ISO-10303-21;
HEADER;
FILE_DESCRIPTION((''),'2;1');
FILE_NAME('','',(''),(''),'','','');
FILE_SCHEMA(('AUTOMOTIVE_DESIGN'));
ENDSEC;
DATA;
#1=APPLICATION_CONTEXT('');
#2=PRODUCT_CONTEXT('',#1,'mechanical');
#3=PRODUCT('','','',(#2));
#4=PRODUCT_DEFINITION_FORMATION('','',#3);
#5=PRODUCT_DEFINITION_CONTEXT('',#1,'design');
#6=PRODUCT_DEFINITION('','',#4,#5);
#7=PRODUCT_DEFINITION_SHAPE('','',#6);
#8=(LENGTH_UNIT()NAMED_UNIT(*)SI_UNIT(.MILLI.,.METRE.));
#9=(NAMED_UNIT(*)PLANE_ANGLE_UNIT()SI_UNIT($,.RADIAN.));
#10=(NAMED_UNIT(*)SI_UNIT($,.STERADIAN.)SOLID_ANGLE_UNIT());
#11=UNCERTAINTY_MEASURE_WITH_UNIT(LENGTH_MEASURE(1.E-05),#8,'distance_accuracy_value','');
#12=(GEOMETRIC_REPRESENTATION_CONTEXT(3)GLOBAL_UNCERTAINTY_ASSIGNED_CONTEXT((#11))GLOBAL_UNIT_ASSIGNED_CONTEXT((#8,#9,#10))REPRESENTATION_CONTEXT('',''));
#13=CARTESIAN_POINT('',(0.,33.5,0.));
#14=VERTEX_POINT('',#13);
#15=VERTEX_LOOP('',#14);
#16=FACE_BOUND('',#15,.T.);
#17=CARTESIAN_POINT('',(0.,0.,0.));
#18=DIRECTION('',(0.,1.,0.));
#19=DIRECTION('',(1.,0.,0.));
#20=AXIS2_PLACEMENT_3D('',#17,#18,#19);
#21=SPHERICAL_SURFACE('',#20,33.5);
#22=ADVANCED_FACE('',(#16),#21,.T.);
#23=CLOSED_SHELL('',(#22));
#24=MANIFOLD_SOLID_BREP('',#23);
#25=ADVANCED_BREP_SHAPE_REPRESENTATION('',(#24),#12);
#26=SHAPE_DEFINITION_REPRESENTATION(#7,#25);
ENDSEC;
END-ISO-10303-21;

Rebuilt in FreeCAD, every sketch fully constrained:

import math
import FreeCAD as App
import Part
import Sketcher

V = App.Vector

doc = App.newDocument("Part")
body = doc.addObject("PartDesign::Body", "Body")

sketch1 = doc.addObject("Sketcher::SketchObject", "Sketch")
body.addObject(sketch1)
sketch1.AttachmentSupport = (doc.XY_Plane, [""])
sketch1.MapMode = "FlatFace"
sketch1.addGeometry(Part.LineSegment(V(0, -34, 0), V(0, 34, 0)), False)
sketch1.addGeometry(Part.ArcOfCircle(Part.Circle(V(0, 0, 0), V(0, 0, 1), 34), math.radians(90), math.radians(270)), False)
sketch1.addConstraint(Sketcher.Constraint("Coincident", 0, 1, 1, 2))
sketch1.addConstraint(Sketcher.Constraint("Coincident", 1, 1, 0, 2))
sketch1.addConstraint(Sketcher.Constraint("Vertical", 0))
sketch1.addConstraint(Sketcher.Constraint("Coincident", 1, 3, -1, 1))
sketch1.addConstraint(Sketcher.Constraint("PointOnObject", 0, 1, -2))
sketch1.addConstraint(Sketcher.Constraint("Radius", 1, 33.5))
revolution = doc.addObject("PartDesign::Revolution", "Revolution")
body.addObject(revolution)
revolution.Profile = sketch1
revolution.ReferenceAxis = (sketch1, ["V_Axis"])
revolution.Angle = 360

doc.recompute()
